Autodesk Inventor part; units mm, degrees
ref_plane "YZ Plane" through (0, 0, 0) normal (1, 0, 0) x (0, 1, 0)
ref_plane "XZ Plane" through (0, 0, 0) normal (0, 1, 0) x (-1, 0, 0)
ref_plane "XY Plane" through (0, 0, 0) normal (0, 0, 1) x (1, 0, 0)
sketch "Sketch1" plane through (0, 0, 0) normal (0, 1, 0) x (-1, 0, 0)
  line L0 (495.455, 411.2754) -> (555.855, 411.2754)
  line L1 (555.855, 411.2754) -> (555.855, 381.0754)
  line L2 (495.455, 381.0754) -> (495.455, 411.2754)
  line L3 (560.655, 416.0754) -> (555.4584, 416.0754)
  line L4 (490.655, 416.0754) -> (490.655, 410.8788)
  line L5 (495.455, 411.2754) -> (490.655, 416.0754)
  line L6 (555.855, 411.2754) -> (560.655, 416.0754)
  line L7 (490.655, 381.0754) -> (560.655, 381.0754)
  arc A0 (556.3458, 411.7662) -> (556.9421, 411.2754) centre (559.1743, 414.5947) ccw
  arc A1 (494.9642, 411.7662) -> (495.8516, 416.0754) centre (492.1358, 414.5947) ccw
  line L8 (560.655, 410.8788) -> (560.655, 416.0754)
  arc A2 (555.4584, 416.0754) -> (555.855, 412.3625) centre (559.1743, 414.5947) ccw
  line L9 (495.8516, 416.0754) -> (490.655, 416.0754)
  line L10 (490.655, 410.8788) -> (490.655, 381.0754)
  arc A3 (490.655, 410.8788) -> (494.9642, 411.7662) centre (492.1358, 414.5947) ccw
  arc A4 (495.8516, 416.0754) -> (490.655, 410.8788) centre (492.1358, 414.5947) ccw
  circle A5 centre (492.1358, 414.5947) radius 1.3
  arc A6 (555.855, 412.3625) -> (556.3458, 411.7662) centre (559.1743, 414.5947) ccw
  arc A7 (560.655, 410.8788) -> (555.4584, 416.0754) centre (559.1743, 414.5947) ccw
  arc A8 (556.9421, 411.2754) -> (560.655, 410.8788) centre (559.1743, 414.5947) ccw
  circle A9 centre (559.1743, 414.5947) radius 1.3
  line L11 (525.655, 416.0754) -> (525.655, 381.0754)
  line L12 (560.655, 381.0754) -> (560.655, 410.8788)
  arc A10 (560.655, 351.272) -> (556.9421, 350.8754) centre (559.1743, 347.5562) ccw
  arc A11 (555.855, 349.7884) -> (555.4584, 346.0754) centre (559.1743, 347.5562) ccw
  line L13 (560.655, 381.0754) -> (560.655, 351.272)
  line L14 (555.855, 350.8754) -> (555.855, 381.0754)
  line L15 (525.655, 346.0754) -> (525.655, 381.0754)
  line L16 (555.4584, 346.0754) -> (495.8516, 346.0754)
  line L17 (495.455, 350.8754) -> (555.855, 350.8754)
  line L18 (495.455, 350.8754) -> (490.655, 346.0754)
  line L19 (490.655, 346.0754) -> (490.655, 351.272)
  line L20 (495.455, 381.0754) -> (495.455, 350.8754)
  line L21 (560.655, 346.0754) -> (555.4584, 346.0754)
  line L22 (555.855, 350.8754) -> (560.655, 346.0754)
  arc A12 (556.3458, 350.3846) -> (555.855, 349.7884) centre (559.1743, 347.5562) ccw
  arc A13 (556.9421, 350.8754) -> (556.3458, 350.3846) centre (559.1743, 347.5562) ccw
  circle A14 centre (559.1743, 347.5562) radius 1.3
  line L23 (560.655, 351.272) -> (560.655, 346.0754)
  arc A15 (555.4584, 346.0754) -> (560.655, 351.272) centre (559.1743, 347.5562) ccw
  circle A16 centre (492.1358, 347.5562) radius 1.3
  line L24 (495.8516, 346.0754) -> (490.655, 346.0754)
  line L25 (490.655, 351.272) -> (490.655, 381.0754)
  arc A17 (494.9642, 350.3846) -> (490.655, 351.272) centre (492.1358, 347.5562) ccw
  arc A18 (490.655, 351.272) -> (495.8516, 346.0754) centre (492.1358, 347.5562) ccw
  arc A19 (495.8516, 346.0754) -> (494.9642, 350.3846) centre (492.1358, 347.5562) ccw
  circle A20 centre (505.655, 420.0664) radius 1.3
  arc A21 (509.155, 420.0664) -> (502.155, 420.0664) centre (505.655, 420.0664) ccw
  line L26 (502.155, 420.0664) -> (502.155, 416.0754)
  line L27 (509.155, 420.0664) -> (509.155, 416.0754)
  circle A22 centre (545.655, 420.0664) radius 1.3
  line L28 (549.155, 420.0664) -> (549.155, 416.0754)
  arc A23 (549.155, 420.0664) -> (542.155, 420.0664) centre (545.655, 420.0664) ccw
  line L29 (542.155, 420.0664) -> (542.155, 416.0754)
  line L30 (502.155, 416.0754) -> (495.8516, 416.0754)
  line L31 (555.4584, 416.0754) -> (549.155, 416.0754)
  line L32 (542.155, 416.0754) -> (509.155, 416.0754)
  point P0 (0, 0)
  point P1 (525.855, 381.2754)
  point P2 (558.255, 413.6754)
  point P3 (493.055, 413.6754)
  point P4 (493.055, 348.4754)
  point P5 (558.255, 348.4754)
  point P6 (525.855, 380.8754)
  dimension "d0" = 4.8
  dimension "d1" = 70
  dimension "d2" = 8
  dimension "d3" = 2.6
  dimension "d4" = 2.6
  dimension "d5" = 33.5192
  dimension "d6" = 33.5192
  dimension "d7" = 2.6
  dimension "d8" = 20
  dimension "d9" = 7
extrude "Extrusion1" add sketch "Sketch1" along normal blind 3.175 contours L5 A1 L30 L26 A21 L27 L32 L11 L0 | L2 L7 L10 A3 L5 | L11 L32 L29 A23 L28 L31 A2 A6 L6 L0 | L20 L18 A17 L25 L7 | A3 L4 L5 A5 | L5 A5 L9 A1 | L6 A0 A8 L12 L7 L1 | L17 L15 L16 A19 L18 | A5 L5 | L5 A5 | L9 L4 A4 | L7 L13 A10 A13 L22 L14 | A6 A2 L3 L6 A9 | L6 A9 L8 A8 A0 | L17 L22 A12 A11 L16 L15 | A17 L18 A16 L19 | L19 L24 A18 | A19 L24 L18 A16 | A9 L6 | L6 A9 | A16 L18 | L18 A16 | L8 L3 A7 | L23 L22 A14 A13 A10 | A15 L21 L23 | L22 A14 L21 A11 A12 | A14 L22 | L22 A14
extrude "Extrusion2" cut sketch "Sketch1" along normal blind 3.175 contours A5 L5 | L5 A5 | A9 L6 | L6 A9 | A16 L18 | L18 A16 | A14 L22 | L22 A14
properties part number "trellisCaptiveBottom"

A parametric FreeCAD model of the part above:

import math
import FreeCAD as App
import Part
import Sketcher

V = App.Vector

doc = App.newDocument("Part")
body = doc.addObject("PartDesign::Body", "Body")

sketch1 = body.newObject("Sketcher::SketchObject", "Sketch")
sketch1.AttachmentSupport = (doc.getObject("XZ_Plane"), [""])
sketch1.MapMode = "FlatFace"
sketch1.addGeometry([
    Part.LineSegment(V(-502.155, 416.0754, 0), V(-495.8516, 416.0754, 0)),
    Part.ArcOfCircle(Part.Circle(V(-492.1358, 414.5947, 0), V(0, 0, 1), 4.000032), math.radians(-68.272534), math.radians(158.273334)),
    Part.LineSegment(V(-490.655, 410.8788, 0), V(-490.655, 351.272, 0)),
    Part.ArcOfCircle(Part.Circle(V(-492.1358, 347.5562, 0), V(0, 0, 1), 3.999992), math.radians(-158.272004), math.radians(68.272004)),
    Part.LineSegment(V(-495.8516, 346.0754, 0), V(-555.4584, 346.0754, 0)),
    Part.ArcOfCircle(Part.Circle(V(-559.1743, 347.5562, 0), V(0, 0, 1), 4.000032), math.radians(111.726666), math.radians(338.272534)),
    Part.LineSegment(V(-560.655, 351.272, 0), V(-560.655, 410.8788, 0)),
    Part.ArcOfCircle(Part.Circle(V(-559.1743, 414.5947, 0), V(0, 0, 1), 4.000048), math.radians(21.726135), math.radians(248.273865)),
    Part.LineSegment(V(-555.4584, 416.0754, 0), V(-549.155, 416.0754, 0)),
    Part.LineSegment(V(-549.155, 416.0754, 0), V(-549.155, 420.0664, 0)),
    Part.ArcOfCircle(Part.Circle(V(-545.655, 420.0664, 0), V(0, 0, 1), 3.5), math.radians(0), math.radians(180)),
    Part.LineSegment(V(-542.155, 420.0664, 0), V(-542.155, 416.0754, 0)),
    Part.LineSegment(V(-542.155, 416.0754, 0), V(-509.155, 416.0754, 0)),
    Part.LineSegment(V(-509.155, 416.0754, 0), V(-509.155, 420.0664, 0)),
    Part.ArcOfCircle(Part.Circle(V(-505.655, 420.0664, 0), V(0, 0, 1), 3.5), math.radians(0), math.radians(180)),
    Part.LineSegment(V(-502.155, 420.0664, 0), V(-502.155, 416.0754, 0)),
    Part.LineSegment(V(-495.455, 411.2754, 0), V(-555.855, 411.2754, 0)),
    Part.LineSegment(V(-555.855, 411.2754, 0), V(-555.855, 350.8754, 0)),
    Part.LineSegment(V(-555.855, 350.8754, 0), V(-495.455, 350.8754, 0)),
    Part.LineSegment(V(-495.455, 350.8754, 0), V(-495.455, 411.2754, 0)),
    Part.Circle(V(-505.655, 420.0664, 0), V(0, 0, 1), 1.3),
    Part.Circle(V(-545.655, 420.0664, 0), V(0, 0, 1), 1.3),
], False)
sketch1.addConstraint([
    Sketcher.Constraint("Coincident", 0, 2, 1, 2),
    Sketcher.Constraint("Coincident", 1, 1, 2, 1),
    Sketcher.Constraint("Coincident", 2, 2, 3, 2),
    Sketcher.Constraint("Coincident", 3, 1, 4, 1),
    Sketcher.Constraint("Coincident", 4, 2, 5, 2),
    Sketcher.Constraint("Coincident", 5, 1, 6, 1),
    Sketcher.Constraint("Coincident", 6, 2, 7, 2),
    Sketcher.Constraint("Coincident", 7, 1, 8, 1),
    Sketcher.Constraint("Coincident", 8, 2, 9, 1),
    Sketcher.Constraint("Tangent", 9, 2, 10, 2),
    Sketcher.Constraint("Tangent", 10, 1, 11, 1),
    Sketcher.Constraint("Coincident", 11, 2, 12, 1),
    Sketcher.Constraint("Coincident", 12, 2, 13, 1),
    Sketcher.Constraint("Tangent", 13, 2, 14, 2),
    Sketcher.Constraint("Tangent", 14, 1, 15, 1),
    Sketcher.Constraint("Coincident", 15, 2, 0, 1),
    Sketcher.Constraint("Coincident", 16, 2, 17, 1),
    Sketcher.Constraint("Coincident", 17, 2, 18, 1),
    Sketcher.Constraint("Coincident", 18, 2, 19, 1),
    Sketcher.Constraint("Coincident", 19, 2, 16, 1),
    Sketcher.Constraint("Horizontal", 0),
    Sketcher.Constraint("Vertical", 2),
    Sketcher.Constraint("Horizontal", 4),
    Sketcher.Constraint("Vertical", 6),
    Sketcher.Constraint("Horizontal", 8),
    Sketcher.Constraint("Vertical", 9),
    Sketcher.Constraint("Vertical", 11),
    Sketcher.Constraint("Horizontal", 12),
    Sketcher.Constraint("Vertical", 13),
    Sketcher.Constraint("Vertical", 15),
    Sketcher.Constraint("Horizontal", 16),
    Sketcher.Constraint("Vertical", 17),
    Sketcher.Constraint("Horizontal", 18),
    Sketcher.Constraint("Vertical", 19),
    Sketcher.Constraint("Coincident", 20, 3, 14, 3),
    Sketcher.Constraint("Coincident", 21, 3, 10, 3),
    Sketcher.Constraint("Equal", 1, 3),
    Sketcher.Constraint("Equal", 3, 5),
    Sketcher.Constraint("Equal", 5, 7),
    Sketcher.Constraint("Equal", 10, 14),
    Sketcher.Constraint("Equal", 20, 21),
    Sketcher.Constraint("Horizontal", 3, 3, 5, 3),
    Sketcher.Constraint("Horizontal", 1, 3, 7, 3),
    Sketcher.Constraint("Horizontal", 10, 3, 14, 3),
    Sketcher.Constraint("Horizontal", 2, 2, 5, 1),
    Sketcher.Constraint("Horizontal", 1, 1, 6, 2),
    Sketcher.Constraint("Horizontal", 0, 2, 7, 1),
    Sketcher.Constraint("Horizontal", 8, 2, 11, 2),
    Sketcher.Constraint("Vertical", 1, 3, 3, 3),
    Sketcher.Constraint("Vertical", 0, 2, 3, 1),
    Sketcher.Constraint("Equal", 0, 8),
    Sketcher.Constraint("Equal", 4, 2),
    Sketcher.Constraint("Equal", 18, 17),
    Sketcher.Constraint("Radius", 1, 4.0),
    Sketcher.Constraint("Diameter", 20, 2.6),
    Sketcher.Constraint("Radius", 10, 3.5),
    Sketcher.Constraint("DistanceX", 6, 2, 16, 2, 4.8),
    Sketcher.Constraint("DistanceY", 16, 2, 7, 1, 4.8),
    Sketcher.Constraint("DistanceY", 4, 2, 17, 2, 4.8),
    Sketcher.Constraint("DistanceX", 18, 2, 2, 2, 4.8),
    Sketcher.Constraint("DistanceX", 12, 1, 12, 2, 33.0),
    Sketcher.Constraint("DistanceX", 16, 2, 16, 1, 60.4),
    Sketcher.Constraint("DistanceY", 9, 1, 9, 2, 3.991),
    Sketcher.Constraint("DistanceX", 0, 1, 0, 2, 6.3034),
    Sketcher.Constraint("DistanceX", 10, 3, -1, 1, 545.655),
    Sketcher.Constraint("DistanceY", -1, 1, 2, 2, 351.272),
])
pad1 = body.newObject("PartDesign::Pad", "Pad")
pad1.Profile = sketch1
pad1.Length = 3.175
pad1.Reversed = True

sketch2 = body.newObject("Sketcher::SketchObject", "Sketch001")
sketch2.AttachmentSupport = (doc.getObject("XZ_Plane"), [""])
sketch2.MapMode = "FlatFace"
sketch2.addGeometry([
    Part.Circle(V(-492.1358, 414.5947, 0), V(0, 0, 1), 1.3),
    Part.Circle(V(-559.1743, 414.5947, 0), V(0, 0, 1), 1.3),
    Part.Circle(V(-492.1358, 347.5562, 0), V(0, 0, 1), 1.3),
    Part.Circle(V(-559.1743, 347.5562, 0), V(0, 0, 1), 1.3),
], False)
sketch2.addConstraint([
    Sketcher.Constraint("Equal", 0, 1),
    Sketcher.Constraint("Equal", 1, 2),
    Sketcher.Constraint("Equal", 2, 3),
    Sketcher.Constraint("Horizontal", 0, 3, 1, 3),
    Sketcher.Constraint("Horizontal", 2, 3, 3, 3),
    Sketcher.Constraint("Vertical", 0, 3, 2, 3),
    Sketcher.Constraint("Vertical", 1, 3, 3, 3),
    Sketcher.Constraint("Diameter", 0, 2.6),
    Sketcher.Constraint("DistanceX", 0, 3, -1, 1, 492.1358),
    Sketcher.Constraint("DistanceY", -1, 1, 0, 3, 414.5947),
    Sketcher.Constraint("DistanceX", 1, 3, -1, 1, 559.1743),
    Sketcher.Constraint("DistanceY", -1, 1, 2, 3, 347.5562),
])
pocket1 = body.newObject("PartDesign::Pocket", "Pocket")
pocket1.Profile = sketch2
pocket1.Length = 3.175

doc.recompute()
